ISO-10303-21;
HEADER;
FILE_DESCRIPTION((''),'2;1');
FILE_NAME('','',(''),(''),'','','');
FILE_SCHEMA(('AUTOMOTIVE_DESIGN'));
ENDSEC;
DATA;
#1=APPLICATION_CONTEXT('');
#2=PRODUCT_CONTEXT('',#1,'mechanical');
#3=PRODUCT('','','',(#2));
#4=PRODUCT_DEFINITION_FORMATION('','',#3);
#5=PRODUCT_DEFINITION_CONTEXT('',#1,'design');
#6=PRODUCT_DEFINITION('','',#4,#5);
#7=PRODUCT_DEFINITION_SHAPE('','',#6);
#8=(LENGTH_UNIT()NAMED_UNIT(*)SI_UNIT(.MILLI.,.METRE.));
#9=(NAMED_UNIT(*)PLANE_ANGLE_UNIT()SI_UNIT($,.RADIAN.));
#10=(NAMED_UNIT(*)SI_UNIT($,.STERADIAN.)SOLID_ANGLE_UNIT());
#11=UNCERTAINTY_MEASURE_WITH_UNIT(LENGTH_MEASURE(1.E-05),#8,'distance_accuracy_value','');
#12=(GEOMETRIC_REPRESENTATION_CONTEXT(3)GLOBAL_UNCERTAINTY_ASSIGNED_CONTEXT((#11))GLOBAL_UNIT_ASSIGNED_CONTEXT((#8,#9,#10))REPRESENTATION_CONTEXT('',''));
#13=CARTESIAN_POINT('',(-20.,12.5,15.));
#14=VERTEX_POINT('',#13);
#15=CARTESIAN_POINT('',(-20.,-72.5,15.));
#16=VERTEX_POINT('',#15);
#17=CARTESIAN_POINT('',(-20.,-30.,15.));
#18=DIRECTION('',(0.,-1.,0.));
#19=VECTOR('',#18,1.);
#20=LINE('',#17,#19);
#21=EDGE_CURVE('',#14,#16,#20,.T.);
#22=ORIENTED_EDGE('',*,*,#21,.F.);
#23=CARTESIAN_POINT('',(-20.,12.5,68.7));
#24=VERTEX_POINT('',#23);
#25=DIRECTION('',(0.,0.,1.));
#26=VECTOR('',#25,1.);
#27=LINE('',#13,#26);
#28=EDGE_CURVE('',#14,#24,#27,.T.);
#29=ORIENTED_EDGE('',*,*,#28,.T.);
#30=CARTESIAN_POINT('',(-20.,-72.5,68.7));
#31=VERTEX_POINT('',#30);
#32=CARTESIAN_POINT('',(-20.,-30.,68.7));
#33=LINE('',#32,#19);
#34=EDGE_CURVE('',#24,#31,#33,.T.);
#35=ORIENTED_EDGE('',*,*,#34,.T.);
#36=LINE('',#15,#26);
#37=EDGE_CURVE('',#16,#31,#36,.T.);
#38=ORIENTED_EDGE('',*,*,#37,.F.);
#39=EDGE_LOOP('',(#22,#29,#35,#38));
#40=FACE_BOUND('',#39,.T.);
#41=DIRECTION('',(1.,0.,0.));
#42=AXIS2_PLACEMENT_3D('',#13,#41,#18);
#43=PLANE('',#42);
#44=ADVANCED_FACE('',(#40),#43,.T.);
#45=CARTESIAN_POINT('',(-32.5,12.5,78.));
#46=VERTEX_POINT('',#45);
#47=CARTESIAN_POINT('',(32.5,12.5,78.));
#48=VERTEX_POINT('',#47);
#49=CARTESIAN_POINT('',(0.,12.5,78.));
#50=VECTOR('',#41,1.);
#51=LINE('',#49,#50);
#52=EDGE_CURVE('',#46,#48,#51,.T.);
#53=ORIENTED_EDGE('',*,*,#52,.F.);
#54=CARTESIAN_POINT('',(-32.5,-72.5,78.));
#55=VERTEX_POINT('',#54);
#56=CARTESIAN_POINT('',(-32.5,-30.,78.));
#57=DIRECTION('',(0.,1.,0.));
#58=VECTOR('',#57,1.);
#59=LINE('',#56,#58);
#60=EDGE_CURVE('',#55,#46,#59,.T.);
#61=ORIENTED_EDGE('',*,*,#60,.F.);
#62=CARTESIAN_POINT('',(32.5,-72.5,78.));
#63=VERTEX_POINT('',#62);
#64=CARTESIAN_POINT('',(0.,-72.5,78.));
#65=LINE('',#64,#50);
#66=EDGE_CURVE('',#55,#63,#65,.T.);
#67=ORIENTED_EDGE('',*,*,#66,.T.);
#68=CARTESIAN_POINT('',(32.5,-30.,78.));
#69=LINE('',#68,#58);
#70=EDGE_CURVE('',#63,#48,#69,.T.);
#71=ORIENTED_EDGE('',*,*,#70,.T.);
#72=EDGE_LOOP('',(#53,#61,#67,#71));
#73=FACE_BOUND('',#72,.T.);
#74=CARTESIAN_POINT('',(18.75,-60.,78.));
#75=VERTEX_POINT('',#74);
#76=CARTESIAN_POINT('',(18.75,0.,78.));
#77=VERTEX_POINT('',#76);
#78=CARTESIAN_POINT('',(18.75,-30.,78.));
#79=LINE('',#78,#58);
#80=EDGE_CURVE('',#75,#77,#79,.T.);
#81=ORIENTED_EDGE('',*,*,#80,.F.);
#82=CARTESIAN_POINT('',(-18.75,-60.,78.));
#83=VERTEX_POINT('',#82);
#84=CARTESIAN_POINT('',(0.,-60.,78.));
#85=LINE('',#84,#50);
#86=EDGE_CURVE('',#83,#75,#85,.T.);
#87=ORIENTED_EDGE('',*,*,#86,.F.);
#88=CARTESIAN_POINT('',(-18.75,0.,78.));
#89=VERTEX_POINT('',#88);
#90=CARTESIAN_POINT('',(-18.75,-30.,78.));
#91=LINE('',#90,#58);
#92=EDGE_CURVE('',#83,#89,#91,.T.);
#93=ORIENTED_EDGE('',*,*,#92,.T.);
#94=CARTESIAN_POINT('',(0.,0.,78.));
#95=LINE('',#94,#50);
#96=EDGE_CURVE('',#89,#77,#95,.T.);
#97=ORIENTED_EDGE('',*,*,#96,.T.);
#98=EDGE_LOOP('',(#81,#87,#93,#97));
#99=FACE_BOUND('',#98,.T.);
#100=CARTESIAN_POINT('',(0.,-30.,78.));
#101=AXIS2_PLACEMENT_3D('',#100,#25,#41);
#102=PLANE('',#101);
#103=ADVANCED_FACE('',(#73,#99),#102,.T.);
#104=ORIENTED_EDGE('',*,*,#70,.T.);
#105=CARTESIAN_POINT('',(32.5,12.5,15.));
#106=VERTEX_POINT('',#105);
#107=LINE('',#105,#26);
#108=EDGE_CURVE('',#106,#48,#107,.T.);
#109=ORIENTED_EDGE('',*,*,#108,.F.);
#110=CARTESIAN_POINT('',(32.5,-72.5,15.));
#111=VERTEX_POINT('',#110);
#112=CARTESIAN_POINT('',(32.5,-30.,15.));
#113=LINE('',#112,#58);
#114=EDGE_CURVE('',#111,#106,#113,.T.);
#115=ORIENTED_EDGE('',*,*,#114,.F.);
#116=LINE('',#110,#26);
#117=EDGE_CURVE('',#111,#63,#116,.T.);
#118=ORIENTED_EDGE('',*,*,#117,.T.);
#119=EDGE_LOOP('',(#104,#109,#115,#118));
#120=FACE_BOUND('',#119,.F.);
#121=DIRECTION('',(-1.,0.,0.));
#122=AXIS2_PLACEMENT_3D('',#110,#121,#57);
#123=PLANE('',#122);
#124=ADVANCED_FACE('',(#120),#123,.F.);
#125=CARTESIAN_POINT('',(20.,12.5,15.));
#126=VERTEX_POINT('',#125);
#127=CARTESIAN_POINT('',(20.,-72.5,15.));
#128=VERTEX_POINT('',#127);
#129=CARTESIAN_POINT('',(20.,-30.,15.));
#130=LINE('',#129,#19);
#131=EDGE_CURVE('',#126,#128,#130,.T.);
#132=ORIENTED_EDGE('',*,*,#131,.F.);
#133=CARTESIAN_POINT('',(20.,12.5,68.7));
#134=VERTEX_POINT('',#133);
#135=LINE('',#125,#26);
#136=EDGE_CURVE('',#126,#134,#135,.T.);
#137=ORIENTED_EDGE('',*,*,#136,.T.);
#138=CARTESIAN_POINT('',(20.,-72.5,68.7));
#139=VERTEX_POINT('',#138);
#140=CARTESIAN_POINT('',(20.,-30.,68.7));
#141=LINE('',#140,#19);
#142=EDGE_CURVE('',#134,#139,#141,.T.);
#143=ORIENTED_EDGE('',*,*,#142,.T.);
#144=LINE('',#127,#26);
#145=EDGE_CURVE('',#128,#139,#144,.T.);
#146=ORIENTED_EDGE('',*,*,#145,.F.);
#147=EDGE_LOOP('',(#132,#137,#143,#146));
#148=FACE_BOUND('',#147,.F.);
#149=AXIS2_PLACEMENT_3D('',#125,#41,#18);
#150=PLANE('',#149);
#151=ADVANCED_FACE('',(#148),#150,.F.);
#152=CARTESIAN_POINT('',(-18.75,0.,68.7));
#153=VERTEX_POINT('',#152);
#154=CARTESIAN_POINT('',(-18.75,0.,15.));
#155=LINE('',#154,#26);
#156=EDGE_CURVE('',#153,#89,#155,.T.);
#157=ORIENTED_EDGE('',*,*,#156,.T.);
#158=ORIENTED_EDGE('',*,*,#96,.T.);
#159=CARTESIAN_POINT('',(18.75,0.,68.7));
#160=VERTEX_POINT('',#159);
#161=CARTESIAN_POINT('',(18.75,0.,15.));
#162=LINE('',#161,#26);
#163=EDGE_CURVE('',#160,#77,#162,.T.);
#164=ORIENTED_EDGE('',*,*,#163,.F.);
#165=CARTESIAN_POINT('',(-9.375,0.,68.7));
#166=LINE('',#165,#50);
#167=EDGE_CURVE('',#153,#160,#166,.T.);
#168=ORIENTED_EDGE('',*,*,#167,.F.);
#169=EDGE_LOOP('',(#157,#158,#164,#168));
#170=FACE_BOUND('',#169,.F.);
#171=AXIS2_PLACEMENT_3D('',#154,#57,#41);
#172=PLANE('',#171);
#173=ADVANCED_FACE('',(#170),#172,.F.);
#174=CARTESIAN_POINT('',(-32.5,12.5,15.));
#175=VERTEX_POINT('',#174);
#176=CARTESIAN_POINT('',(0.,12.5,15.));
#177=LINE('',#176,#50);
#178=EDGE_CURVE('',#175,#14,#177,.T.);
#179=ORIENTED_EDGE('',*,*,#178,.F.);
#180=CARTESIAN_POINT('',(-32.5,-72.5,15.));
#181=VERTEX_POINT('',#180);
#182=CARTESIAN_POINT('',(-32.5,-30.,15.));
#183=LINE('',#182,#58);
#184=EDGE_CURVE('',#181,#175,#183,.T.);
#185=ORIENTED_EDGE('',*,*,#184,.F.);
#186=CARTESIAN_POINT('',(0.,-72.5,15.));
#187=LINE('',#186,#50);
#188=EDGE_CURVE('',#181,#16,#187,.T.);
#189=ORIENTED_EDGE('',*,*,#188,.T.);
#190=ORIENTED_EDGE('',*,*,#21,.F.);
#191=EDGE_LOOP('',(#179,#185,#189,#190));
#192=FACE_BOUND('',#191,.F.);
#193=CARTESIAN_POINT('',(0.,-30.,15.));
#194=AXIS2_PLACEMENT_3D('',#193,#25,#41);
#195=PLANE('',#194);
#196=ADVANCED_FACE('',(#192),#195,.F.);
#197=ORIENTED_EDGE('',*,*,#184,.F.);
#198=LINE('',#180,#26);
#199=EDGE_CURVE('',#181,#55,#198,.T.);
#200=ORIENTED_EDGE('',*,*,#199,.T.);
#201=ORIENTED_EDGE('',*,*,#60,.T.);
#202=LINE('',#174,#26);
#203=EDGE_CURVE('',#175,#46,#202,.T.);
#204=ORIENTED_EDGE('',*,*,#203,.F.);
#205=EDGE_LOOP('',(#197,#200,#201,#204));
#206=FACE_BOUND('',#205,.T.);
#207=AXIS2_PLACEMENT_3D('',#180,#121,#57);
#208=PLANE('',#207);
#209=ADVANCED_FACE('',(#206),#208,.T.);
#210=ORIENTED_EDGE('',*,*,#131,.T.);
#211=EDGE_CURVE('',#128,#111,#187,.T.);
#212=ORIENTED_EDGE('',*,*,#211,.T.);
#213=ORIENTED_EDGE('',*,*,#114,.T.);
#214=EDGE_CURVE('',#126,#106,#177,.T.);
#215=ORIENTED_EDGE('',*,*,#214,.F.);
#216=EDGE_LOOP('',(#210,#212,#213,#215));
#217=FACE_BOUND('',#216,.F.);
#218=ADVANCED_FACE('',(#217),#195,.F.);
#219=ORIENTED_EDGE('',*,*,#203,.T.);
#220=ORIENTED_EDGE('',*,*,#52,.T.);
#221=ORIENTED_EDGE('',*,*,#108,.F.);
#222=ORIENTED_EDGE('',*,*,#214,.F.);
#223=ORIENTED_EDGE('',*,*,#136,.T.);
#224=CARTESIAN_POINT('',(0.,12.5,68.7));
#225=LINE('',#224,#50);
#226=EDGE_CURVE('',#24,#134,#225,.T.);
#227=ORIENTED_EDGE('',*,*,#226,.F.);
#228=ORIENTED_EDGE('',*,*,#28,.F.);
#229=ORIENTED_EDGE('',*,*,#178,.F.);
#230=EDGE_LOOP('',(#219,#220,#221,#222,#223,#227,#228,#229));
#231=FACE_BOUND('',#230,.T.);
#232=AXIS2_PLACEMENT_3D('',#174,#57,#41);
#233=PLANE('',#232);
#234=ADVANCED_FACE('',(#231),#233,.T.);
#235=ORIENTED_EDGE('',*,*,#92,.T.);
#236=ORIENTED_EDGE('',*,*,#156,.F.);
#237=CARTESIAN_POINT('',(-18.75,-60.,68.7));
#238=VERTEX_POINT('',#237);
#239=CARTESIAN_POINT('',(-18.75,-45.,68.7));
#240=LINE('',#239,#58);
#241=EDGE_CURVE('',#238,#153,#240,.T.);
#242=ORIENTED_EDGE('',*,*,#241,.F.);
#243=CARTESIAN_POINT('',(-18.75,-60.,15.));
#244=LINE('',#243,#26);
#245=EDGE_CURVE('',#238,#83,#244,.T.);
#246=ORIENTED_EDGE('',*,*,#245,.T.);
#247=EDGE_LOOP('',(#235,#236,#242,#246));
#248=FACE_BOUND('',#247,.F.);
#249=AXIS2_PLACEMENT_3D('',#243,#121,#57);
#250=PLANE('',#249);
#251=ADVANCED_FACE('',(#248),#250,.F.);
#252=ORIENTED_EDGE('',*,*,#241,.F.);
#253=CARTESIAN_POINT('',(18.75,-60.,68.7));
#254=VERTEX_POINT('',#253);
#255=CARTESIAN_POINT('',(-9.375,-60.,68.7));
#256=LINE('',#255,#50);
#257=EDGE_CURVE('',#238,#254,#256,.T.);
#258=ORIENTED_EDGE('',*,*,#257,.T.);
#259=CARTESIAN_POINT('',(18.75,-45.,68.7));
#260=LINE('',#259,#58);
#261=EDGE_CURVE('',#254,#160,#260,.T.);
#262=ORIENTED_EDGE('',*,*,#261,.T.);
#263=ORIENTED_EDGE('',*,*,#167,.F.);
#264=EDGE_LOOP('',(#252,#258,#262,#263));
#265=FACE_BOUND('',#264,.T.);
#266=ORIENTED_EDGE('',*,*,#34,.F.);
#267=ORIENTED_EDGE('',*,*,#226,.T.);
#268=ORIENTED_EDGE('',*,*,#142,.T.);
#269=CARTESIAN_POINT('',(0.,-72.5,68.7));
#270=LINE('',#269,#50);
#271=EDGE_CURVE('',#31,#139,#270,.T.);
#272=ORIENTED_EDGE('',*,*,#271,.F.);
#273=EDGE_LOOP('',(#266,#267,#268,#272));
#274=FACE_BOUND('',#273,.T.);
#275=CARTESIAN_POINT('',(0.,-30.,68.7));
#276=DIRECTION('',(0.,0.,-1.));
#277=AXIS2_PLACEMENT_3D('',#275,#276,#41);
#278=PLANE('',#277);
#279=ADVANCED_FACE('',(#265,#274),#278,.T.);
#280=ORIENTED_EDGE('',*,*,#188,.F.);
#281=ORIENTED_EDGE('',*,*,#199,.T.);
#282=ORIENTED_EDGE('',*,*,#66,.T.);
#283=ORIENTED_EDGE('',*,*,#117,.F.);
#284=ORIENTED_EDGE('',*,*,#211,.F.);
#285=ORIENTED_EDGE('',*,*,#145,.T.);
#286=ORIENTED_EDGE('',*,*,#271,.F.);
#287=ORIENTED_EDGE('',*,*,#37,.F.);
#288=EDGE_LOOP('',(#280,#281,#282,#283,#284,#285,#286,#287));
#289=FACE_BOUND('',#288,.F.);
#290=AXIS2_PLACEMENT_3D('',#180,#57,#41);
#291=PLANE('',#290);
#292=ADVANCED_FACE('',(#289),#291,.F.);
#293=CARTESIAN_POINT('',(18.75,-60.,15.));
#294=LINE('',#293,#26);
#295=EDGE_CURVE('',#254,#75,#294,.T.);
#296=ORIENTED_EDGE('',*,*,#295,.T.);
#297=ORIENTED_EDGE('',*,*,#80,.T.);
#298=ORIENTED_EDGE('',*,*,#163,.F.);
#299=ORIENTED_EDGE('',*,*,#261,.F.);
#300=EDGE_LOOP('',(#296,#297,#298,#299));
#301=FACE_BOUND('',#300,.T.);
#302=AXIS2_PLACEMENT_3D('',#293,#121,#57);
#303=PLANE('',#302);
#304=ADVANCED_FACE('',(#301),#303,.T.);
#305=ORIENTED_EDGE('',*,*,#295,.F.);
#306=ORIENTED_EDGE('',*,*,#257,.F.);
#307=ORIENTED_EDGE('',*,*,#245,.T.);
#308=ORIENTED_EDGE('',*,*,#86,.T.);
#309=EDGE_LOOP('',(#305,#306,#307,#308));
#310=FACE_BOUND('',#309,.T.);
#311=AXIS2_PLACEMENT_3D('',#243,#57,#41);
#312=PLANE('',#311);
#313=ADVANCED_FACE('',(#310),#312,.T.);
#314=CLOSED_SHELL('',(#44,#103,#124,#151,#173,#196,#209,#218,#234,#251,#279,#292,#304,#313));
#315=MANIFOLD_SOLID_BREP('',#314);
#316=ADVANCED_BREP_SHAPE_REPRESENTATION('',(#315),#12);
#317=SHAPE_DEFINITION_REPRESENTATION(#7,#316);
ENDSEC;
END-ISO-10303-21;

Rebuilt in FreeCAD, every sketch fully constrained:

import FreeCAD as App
import Part
import Sketcher

V = App.Vector


def add_polygon(sketch, points):
    """Adds a closed chain of lines whose ends are joined by coincident constraints."""
    first, n = sketch.GeometryCount, len(points)
    for a, b in zip(points, points[1:] + points[:1]):
        sketch.addGeometry(Part.LineSegment(App.Vector(*a, 0), App.Vector(*b, 0)), False)
    for i in range(n):
        sketch.addConstraint(Sketcher.Constraint("Coincident", first + i, 2, first + (i + 1) % n, 1))

doc = App.newDocument("Part")
body = doc.addObject("PartDesign::Body", "Body")

# Sketch on XY plane
sketch1 = body.newObject("Sketcher::SketchObject", "Sketch")
sketch1.AttachmentSupport = (doc.getObject("XY_Plane"), [""])
sketch1.MapMode = "FlatFace"
add_polygon(sketch1, [(-32.5, 12.5), (-32.5, -72.5), (32.5, -72.5), (32.5, 12.5)])  # lines 0-3
sketch1.addConstraint(Sketcher.Constraint("Vertical", 0))
sketch1.addConstraint(Sketcher.Constraint("Horizontal", 1))
sketch1.addConstraint(Sketcher.Constraint("Vertical", 2))
sketch1.addConstraint(Sketcher.Constraint("Horizontal", 3))
sketch1.addConstraint(Sketcher.Constraint("DistanceX", 1, 1, 1, 2, 65.0))
sketch1.addConstraint(Sketcher.Constraint("DistanceY", 0, 2, 0, 1, 85.0))
sketch1.addConstraint(Sketcher.Constraint("DistanceX", 0, 2, -1, 1, 32.5))
sketch1.addConstraint(Sketcher.Constraint("DistanceY", 0, 2, -1, 1, 72.5))
pad1 = body.newObject("PartDesign::Pad", "Pad")
pad1.Profile = sketch1
pad1.Length = 63

# Sketch on XY plane
sketch2 = body.newObject("Sketcher::SketchObject", "Sketch001")
sketch2.AttachmentSupport = (doc.getObject("XY_Plane"), [""])
sketch2.MapMode = "FlatFace"
add_polygon(sketch2, [(-20, -72.5), (-20, 12.5), (20, 12.5), (20, -72.5)])  # lines 0-3
sketch2.addConstraint(Sketcher.Constraint("Vertical", 0))
sketch2.addConstraint(Sketcher.Constraint("Horizontal", 1))
sketch2.addConstraint(Sketcher.Constraint("Vertical", 2))
sketch2.addConstraint(Sketcher.Constraint("Horizontal", 3))
sketch2.addConstraint(Sketcher.Constraint("DistanceX", 1, 1, 1, 2, 40.0))
sketch2.addConstraint(Sketcher.Constraint("DistanceY", 0, 1, 0, 2, 85.0))
sketch2.addConstraint(Sketcher.Constraint("DistanceX", 0, 2, -1, 1, 20.0))
sketch2.addConstraint(Sketcher.Constraint("DistanceY", -1, 1, 0, 2, 12.5))
pocket1 = body.newObject("PartDesign::Pocket", "Pocket")
pocket1.Profile = sketch2
pocket1.Length = 53.7
pocket1.Reversed = True

# Sketch on XY plane
sketch3 = body.newObject("Sketcher::SketchObject", "Sketch002")
sketch3.AttachmentSupport = (doc.getObject("XY_Plane"), [""])
sketch3.MapMode = "FlatFace"
add_polygon(sketch3, [(-18.75, 0), (-18.75, -60), (18.75, -60), (18.75, 0)])  # lines 0-3
sketch3.addConstraint(Sketcher.Constraint("Vertical", 0))
sketch3.addConstraint(Sketcher.Constraint("Horizontal", 1))
sketch3.addConstraint(Sketcher.Constraint("Vertical", 2))
sketch3.addConstraint(Sketcher.Constraint("Horizontal", 3))
sketch3.addConstraint(Sketcher.Constraint("Symmetric", 2, 2, 3, 2, -1, 1))
sketch3.addConstraint(Sketcher.Constraint("DistanceY", 0, 2, 0, 1, 60.0))
sketch3.addConstraint(Sketcher.Constraint("DistanceX", 1, 1, 1, 2, 37.5))
pocket2 = body.newObject("PartDesign::Pocket", "Pocket001")
pocket2.Profile = sketch3
pocket2.Length = 63
pocket2.Reversed = True
body2 = doc.addObject("PartDesign::Body", "Body001")
doc.recompute()

body.Placement = App.Placement(V(0, 0, 15), App.Rotation(V(0, 0, 1), 0))
boolean = body2.newObject("PartDesign::Boolean", "Boolean")
boolean.Type = "Fuse"
boolean.addObjects([body])

doc.recompute()
